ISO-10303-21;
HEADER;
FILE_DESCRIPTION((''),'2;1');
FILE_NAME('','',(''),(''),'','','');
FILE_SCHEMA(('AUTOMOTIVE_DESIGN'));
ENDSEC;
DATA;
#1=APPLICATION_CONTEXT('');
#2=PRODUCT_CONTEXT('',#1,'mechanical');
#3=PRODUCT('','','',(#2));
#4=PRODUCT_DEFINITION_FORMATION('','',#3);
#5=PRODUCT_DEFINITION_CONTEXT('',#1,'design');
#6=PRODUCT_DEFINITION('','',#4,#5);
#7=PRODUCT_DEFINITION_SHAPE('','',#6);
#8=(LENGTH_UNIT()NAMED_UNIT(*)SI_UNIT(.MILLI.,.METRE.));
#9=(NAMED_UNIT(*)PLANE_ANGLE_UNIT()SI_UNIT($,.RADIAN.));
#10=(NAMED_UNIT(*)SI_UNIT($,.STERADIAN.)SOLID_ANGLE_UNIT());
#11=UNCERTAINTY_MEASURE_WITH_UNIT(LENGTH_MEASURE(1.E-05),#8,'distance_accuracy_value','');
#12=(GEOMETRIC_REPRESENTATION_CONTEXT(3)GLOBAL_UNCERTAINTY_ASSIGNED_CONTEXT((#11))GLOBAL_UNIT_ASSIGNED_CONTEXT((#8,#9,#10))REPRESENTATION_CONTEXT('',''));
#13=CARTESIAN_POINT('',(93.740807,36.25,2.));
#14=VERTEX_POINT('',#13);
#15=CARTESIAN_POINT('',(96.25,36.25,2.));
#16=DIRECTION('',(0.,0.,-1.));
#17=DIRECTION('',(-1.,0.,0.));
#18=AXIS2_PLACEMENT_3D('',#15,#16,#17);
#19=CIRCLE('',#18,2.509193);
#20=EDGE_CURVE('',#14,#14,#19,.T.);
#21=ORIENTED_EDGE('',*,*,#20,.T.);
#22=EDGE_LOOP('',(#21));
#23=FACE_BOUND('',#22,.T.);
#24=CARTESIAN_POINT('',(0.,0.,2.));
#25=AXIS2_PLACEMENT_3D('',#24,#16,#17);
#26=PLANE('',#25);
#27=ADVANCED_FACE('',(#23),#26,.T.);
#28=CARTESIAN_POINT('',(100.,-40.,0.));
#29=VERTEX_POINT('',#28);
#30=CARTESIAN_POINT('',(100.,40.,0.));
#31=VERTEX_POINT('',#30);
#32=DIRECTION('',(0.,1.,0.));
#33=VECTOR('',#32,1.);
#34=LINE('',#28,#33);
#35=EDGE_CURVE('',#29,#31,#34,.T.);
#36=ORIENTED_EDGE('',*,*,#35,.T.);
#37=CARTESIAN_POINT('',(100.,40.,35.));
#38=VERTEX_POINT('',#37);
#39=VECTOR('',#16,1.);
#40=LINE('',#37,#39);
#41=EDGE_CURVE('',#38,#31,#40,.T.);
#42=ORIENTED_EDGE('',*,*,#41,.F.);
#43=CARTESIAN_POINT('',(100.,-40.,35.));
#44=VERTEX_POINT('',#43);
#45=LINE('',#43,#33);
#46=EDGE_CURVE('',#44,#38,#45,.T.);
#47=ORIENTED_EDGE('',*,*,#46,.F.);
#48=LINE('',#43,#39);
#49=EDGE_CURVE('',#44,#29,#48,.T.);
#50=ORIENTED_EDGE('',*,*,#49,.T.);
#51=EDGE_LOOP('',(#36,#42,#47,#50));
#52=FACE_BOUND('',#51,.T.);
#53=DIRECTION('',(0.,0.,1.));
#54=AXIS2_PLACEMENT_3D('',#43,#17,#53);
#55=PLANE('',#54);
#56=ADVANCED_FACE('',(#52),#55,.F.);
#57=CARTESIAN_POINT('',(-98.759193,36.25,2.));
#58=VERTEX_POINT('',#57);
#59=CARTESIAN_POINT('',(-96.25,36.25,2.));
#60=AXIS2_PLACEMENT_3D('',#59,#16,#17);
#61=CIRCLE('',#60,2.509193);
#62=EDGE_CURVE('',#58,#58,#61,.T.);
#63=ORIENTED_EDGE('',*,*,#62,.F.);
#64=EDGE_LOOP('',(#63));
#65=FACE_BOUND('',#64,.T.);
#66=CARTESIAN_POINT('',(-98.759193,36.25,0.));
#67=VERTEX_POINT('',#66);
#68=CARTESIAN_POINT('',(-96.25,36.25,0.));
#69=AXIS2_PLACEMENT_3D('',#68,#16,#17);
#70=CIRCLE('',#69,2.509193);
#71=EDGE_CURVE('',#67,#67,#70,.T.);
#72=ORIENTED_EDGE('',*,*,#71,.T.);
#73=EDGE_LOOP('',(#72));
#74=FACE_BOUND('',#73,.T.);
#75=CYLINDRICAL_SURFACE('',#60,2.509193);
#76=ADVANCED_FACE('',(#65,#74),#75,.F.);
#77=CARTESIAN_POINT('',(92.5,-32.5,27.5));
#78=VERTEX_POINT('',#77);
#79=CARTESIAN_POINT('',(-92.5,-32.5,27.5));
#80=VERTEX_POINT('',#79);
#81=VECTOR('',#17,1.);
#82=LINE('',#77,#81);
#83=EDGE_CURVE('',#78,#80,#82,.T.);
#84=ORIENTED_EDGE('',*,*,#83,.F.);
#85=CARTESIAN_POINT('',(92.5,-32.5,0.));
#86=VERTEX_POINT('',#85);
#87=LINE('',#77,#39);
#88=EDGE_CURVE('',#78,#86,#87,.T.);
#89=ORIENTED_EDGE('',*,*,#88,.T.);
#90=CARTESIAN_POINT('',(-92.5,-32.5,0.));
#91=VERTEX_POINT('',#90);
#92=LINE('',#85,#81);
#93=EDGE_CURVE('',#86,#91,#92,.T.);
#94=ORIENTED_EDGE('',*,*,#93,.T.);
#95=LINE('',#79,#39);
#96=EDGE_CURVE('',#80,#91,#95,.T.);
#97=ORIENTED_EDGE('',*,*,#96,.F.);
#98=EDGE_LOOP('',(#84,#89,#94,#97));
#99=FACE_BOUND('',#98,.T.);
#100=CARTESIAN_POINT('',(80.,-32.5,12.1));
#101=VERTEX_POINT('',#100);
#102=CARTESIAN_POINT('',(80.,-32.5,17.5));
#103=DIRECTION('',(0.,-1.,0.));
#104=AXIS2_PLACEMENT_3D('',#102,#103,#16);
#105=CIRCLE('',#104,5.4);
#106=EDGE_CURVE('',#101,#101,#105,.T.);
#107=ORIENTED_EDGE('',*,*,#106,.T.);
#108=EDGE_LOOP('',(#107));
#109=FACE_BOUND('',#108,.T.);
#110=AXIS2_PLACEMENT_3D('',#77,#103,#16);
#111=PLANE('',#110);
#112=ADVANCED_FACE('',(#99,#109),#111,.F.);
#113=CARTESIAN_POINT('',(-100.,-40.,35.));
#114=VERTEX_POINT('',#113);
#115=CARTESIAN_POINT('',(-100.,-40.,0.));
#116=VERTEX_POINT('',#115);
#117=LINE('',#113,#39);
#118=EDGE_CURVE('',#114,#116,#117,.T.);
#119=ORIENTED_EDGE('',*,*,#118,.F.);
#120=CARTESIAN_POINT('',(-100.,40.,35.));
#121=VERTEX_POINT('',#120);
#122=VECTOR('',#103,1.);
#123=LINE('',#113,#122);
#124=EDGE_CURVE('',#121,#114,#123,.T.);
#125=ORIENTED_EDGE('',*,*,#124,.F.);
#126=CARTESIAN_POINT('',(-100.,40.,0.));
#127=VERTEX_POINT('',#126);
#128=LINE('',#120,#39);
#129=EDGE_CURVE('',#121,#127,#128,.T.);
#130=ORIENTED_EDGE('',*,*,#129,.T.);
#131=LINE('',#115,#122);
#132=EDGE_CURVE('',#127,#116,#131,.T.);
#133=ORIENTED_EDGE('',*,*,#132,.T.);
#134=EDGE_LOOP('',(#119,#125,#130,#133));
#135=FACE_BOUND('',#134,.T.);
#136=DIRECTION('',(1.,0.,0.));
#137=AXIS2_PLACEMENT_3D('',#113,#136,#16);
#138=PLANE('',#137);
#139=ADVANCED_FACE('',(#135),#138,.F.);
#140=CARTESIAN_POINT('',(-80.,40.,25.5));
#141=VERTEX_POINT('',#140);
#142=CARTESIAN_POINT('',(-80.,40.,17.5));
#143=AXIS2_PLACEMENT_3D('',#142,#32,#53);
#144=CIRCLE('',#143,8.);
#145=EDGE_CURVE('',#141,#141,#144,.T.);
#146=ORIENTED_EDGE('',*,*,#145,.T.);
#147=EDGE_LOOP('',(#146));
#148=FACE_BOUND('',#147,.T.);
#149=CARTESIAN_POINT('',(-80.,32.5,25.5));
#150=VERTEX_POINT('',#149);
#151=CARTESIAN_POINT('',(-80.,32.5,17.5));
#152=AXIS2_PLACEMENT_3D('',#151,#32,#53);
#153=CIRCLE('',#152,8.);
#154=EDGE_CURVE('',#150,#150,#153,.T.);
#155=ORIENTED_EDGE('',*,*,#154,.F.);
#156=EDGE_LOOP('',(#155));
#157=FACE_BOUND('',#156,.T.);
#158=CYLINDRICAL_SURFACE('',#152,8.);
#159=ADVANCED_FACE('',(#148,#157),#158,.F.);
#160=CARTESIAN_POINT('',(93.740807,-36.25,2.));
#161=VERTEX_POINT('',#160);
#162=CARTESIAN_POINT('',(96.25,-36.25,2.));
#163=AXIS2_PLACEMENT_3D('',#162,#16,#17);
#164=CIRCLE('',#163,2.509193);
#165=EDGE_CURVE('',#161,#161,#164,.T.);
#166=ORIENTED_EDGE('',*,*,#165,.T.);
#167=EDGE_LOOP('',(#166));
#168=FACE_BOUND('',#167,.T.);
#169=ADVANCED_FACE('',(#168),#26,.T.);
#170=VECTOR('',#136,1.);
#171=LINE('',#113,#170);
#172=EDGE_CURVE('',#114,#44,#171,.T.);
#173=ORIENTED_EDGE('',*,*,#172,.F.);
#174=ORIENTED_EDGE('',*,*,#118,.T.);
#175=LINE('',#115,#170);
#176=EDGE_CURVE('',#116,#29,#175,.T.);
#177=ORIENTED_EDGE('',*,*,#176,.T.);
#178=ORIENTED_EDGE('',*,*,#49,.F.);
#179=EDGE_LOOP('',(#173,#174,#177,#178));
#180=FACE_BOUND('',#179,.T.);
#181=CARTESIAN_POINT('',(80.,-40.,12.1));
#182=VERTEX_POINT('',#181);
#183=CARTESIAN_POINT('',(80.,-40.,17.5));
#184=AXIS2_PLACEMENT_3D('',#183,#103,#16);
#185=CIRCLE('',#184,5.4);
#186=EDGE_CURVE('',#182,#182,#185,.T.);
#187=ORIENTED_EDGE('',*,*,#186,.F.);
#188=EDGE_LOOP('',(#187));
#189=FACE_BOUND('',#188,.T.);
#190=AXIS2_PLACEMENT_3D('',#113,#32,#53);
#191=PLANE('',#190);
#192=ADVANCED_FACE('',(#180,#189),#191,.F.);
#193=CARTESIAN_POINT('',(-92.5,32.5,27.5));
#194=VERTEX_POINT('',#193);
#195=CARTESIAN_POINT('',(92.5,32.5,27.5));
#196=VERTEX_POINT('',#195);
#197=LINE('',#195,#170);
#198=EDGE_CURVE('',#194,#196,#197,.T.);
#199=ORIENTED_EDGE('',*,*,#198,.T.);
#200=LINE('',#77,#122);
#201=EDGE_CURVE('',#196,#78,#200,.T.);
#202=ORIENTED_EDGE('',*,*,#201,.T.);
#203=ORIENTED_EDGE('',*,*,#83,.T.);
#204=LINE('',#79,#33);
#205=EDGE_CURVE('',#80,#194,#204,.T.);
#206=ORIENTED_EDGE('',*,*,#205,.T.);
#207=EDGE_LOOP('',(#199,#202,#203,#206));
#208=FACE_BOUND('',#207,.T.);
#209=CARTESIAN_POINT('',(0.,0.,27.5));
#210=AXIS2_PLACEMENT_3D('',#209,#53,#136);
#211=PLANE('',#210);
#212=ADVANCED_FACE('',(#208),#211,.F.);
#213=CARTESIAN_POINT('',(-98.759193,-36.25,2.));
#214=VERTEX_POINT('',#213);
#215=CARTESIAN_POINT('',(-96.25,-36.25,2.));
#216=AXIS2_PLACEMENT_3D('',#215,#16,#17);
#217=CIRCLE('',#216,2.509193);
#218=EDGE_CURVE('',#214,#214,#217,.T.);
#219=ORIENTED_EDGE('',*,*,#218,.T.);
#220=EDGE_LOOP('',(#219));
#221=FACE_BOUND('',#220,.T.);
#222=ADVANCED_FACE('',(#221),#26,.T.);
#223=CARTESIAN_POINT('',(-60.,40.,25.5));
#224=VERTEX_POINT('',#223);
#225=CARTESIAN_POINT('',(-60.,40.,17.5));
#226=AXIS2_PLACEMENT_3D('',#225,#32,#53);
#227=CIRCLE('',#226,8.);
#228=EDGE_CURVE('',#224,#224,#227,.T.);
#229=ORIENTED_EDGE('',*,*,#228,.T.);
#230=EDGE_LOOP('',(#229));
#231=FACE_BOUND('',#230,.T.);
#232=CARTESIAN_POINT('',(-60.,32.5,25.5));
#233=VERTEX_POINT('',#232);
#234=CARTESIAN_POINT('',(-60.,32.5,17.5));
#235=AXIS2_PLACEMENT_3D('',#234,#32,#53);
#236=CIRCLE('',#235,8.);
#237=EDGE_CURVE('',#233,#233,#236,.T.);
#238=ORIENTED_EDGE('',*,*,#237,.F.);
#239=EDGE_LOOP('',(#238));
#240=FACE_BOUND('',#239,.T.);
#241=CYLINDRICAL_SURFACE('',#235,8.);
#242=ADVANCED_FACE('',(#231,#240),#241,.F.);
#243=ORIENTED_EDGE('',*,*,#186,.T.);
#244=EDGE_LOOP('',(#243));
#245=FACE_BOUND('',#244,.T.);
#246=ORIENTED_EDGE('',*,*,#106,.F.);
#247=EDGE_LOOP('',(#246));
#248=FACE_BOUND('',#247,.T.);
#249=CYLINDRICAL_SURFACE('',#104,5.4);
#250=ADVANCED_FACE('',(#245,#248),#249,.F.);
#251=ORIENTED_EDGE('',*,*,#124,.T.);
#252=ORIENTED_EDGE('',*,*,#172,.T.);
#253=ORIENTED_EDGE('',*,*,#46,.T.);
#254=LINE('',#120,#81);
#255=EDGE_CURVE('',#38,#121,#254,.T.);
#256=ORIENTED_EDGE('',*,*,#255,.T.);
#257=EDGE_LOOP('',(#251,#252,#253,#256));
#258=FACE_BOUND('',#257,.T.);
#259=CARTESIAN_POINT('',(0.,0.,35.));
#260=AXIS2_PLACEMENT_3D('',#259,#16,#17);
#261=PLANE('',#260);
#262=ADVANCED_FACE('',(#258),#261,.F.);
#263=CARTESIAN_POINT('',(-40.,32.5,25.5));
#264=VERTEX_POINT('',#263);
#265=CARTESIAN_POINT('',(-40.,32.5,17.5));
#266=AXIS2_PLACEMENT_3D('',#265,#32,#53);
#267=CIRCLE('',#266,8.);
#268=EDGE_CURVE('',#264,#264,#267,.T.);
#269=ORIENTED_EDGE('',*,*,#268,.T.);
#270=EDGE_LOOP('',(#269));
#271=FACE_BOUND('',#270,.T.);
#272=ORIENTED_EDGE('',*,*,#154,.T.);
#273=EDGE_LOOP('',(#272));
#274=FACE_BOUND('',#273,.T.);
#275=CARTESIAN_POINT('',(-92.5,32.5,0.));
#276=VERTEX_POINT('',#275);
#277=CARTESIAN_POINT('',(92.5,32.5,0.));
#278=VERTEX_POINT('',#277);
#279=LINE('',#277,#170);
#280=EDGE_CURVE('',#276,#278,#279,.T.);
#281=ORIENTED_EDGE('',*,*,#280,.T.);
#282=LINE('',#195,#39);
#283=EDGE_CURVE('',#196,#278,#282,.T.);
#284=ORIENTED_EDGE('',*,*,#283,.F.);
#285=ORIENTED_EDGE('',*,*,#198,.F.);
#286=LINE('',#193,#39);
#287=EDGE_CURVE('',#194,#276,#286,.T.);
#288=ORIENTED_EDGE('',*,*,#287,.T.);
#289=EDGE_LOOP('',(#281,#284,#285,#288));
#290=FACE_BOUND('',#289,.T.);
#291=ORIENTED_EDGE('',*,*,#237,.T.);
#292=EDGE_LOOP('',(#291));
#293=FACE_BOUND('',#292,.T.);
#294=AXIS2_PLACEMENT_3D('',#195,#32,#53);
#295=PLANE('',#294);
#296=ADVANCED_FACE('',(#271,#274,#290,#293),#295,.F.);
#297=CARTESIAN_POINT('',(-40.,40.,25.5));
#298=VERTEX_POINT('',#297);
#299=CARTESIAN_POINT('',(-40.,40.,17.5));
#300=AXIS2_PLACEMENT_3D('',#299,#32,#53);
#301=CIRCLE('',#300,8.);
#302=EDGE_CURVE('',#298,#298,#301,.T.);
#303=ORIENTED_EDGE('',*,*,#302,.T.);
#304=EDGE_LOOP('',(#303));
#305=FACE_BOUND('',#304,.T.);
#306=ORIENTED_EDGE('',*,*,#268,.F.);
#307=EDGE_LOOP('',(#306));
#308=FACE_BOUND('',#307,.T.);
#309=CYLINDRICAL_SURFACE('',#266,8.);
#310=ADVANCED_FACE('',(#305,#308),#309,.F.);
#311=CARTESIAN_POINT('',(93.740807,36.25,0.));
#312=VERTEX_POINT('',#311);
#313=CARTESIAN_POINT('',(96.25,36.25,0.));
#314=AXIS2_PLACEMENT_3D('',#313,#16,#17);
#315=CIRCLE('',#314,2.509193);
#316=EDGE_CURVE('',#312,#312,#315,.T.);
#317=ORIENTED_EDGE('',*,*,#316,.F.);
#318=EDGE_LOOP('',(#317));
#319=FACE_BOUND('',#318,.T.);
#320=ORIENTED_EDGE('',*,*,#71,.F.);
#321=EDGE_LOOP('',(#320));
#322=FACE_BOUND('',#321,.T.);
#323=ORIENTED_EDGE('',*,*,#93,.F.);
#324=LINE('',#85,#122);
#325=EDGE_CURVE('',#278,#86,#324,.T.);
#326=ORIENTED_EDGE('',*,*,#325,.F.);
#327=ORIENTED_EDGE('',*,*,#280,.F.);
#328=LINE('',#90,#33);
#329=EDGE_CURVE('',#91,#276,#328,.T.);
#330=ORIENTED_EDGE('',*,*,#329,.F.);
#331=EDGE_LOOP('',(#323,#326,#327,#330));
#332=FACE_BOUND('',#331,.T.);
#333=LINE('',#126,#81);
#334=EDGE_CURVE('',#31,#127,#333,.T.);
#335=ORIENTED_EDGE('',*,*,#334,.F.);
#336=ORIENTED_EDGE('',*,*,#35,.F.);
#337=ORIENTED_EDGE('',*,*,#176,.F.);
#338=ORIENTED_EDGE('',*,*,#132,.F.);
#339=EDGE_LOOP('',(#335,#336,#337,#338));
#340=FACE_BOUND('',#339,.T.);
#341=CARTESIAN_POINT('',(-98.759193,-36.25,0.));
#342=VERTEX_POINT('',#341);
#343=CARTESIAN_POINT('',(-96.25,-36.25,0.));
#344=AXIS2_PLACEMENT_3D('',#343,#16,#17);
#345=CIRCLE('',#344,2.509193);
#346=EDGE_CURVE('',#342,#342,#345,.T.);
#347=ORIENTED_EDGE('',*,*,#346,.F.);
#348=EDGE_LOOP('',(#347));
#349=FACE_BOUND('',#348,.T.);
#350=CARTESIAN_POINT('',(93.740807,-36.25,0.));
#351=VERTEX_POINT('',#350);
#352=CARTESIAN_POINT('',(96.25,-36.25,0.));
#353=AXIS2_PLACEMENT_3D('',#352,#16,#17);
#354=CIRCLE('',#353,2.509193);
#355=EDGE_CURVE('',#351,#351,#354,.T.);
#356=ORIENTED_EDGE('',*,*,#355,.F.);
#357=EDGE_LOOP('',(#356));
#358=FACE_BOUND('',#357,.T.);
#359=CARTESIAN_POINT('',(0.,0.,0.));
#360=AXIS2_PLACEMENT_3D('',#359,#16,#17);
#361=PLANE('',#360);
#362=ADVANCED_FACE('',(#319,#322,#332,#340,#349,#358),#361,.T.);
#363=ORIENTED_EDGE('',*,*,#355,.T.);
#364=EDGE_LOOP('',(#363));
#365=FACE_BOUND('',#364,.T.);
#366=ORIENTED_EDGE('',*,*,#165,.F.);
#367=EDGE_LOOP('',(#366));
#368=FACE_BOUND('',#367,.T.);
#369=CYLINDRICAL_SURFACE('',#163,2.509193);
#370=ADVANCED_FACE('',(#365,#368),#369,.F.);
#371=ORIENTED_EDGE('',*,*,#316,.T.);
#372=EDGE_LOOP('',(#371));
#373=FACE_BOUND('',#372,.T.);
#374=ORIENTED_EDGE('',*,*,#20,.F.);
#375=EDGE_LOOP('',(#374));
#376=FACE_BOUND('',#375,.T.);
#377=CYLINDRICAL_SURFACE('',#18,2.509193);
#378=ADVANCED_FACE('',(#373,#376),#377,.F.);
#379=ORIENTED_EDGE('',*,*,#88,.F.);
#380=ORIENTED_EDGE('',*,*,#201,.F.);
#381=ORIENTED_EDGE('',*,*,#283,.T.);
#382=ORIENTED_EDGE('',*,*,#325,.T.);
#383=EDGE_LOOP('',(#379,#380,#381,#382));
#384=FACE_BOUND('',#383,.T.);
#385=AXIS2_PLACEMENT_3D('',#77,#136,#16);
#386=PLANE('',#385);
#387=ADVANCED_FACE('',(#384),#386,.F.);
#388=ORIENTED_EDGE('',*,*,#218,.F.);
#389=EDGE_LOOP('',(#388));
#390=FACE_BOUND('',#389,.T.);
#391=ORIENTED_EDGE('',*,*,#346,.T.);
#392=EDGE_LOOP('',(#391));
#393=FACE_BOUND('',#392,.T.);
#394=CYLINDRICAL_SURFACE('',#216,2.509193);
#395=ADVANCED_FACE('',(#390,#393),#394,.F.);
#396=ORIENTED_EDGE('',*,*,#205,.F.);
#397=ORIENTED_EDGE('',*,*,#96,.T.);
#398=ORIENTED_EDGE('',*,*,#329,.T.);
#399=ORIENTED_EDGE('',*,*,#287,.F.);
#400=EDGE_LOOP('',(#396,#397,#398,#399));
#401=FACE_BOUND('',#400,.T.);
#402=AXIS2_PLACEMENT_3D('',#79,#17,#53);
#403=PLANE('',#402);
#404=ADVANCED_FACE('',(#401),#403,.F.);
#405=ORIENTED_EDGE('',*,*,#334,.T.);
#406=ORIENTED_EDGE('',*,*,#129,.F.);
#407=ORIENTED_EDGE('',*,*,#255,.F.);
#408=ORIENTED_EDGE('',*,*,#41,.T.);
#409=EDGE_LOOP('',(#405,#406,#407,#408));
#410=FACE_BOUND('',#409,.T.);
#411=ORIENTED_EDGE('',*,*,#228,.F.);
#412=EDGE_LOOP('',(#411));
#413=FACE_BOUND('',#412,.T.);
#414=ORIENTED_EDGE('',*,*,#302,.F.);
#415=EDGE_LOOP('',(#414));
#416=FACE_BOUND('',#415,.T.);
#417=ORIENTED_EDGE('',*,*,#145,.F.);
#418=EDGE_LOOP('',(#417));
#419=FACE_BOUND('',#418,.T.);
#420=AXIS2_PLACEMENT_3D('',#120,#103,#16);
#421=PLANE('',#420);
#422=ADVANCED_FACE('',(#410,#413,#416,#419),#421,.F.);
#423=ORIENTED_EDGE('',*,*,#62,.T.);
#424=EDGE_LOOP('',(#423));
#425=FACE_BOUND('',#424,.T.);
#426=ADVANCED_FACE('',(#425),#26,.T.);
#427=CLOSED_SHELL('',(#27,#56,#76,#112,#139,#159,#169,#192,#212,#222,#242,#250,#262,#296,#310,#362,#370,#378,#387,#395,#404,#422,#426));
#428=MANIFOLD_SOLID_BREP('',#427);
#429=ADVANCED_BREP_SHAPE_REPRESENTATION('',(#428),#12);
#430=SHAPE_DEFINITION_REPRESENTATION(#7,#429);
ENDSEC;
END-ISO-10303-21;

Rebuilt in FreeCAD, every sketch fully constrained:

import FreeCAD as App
import Part
import Sketcher
from FreeCAD import Vector


def add_polygon(sketch, points):
    """Adds a closed chain of lines whose ends are joined by coincident constraints."""
    first, n = sketch.GeometryCount, len(points)
    for a, b in zip(points, points[1:] + points[:1]):
        sketch.addGeometry(Part.LineSegment(App.Vector(*a, 0), App.Vector(*b, 0)), False)
    for i in range(n):
        sketch.addConstraint(Sketcher.Constraint("Coincident", first + i, 2, first + (i + 1) % n, 1))

doc = App.newDocument("Part")
params = doc.addObject("Spreadsheet::Sheet", "Params")
for row, (alias, value) in enumerate([
    ("sketch1_width", "200 mm"),
    ("sketch1_height", "80 mm"),
    ("pad1_length", "35 mm"),
    ("sketch2_width", "185 mm"),
    ("sketch2_height", "65 mm"),
    ("pocket1_length", "27.5 mm"),
    ("sketch3_diameter", "16 mm"),
    ("pocket2_length", "7.5 mm"),
    ("sketch4_diameter", "10.8 mm"),
    ("pocket3_length", "7.5 mm"),
    ("pocket4_length", "2 mm"),
], start=1):
    params.set(f"A{row}", alias)
    params.set(f"B{row}", "=" + value)
    params.setAlias(f"B{row}", alias)

body = doc.addObject("PartDesign::Body", "Body")

# Sketch on XY plane
sketch1 = body.newObject("Sketcher::SketchObject", "Sketch")
sketch1.AttachmentSupport = (doc.getObject("XY_Plane"), [""])
sketch1.MapMode = "FlatFace"
add_polygon(sketch1, [(-100, 40), (-100, -40), (100, -40), (100, 40)])  # lines 0-3
sketch1.addConstraint(Sketcher.Constraint("Vertical", 0))
sketch1.addConstraint(Sketcher.Constraint("Horizontal", 1))
sketch1.addConstraint(Sketcher.Constraint("Vertical", 2))
sketch1.addConstraint(Sketcher.Constraint("Horizontal", 3))
sketch1.addConstraint(Sketcher.Constraint("Symmetric", 0, 2, 2, 2, -1, 1))
sketch1.addConstraint(Sketcher.Constraint("DistanceX", 1, 1, 1, 2, 200.0))
sketch1.addConstraint(Sketcher.Constraint("DistanceY", 0, 2, 0, 1, 80.0))
sketch1.setExpression("Constraints[9]", "Params.sketch1_width")
sketch1.setExpression("Constraints[10]", "Params.sketch1_height")
pad1 = body.newObject("PartDesign::Pad", "Pad")
pad1.Profile = sketch1
pad1.setExpression("Length", "Params.pad1_length")

# Sketch on XY plane
sketch2 = body.newObject("Sketcher::SketchObject", "Sketch001")
sketch2.AttachmentSupport = (doc.getObject("XY_Plane"), [""])
sketch2.MapMode = "FlatFace"
add_polygon(sketch2, [(92, 32), (92, -32), (-92, -32), (-92, 32)])  # lines 0-3
sketch2.addConstraint(Sketcher.Constraint("Vertical", 0))
sketch2.addConstraint(Sketcher.Constraint("Horizontal", 1))
sketch2.addConstraint(Sketcher.Constraint("Vertical", 2))
sketch2.addConstraint(Sketcher.Constraint("Horizontal", 3))
sketch2.addConstraint(Sketcher.Constraint("Symmetric", 0, 2, 2, 2, -1, 1))
sketch2.addConstraint(Sketcher.Constraint("DistanceX", 1, 2, 1, 1, 185.0))
sketch2.addConstraint(Sketcher.Constraint("DistanceY", 0, 2, 0, 1, 65.0))
sketch2.setExpression("Constraints[9]", "Params.sketch2_width")
sketch2.setExpression("Constraints[10]", "Params.sketch2_height")
pocket1 = body.newObject("PartDesign::Pocket", "Pocket")
pocket1.Profile = sketch2
pocket1.setExpression("Length", "Params.pocket1_length")
pocket1.Reversed = True

# Sketch on XZ plane
sketch3 = body.newObject("Sketcher::SketchObject", "Sketch002")
sketch3.AttachmentSupport = (doc.getObject("XZ_Plane"), [""])
sketch3.MapMode = "FlatFace"
sketch3.AttachmentOffset = App.Placement(Vector(0, 0, -40), App.Rotation())
sketch3.addGeometry(Part.Circle(Vector(-80, 18, 0), Vector(0, 0, 1), 8), False)
sketch3.addGeometry(Part.Circle(Vector(-60, 18, 0), Vector(0, 0, 1), 8), False)
sketch3.addGeometry(Part.Circle(Vector(-40, 18, 0), Vector(0, 0, 1), 8), False)
sketch3.addConstraint(Sketcher.Constraint("Equal", 0, 1))
sketch3.addConstraint(Sketcher.Constraint("Equal", 1, 2))
sketch3.addConstraint(Sketcher.Constraint("Horizontal", 0, 3, 1, 3))
sketch3.addConstraint(Sketcher.Constraint("Horizontal", 1, 3, 2, 3))
sketch3.addConstraint(Sketcher.Constraint("Diameter", 0, 16.0))
sketch3.addConstraint(Sketcher.Constraint("DistanceX", 0, 3, -1, 1, 80.0))
sketch3.addConstraint(Sketcher.Constraint("DistanceX", 1, 3, -1, 1, 60.0))
sketch3.addConstraint(Sketcher.Constraint("DistanceX", 2, 3, -1, 1, 40.0))
sketch3.addConstraint(Sketcher.Constraint("DistanceY", -1, 1, 0, 3, 17.5))
sketch3.setExpression("Constraints[4]", "Params.sketch3_diameter")
pocket2 = body.newObject("PartDesign::Pocket", "Pocket001")
pocket2.Profile = sketch3
pocket2.setExpression("Length", "Params.pocket2_length")
pocket2.Reversed = True

# Sketch on XZ plane
sketch4 = body.newObject("Sketcher::SketchObject", "Sketch003")
sketch4.AttachmentSupport = (doc.getObject("XZ_Plane"), [""])
sketch4.MapMode = "FlatFace"
sketch4.AttachmentOffset = App.Placement(Vector(0, 0, 40), App.Rotation())
sketch4.addGeometry(Part.Circle(Vector(80, 18, 0), Vector(0, 0, 1), 5), False)
sketch4.addConstraint(Sketcher.Constraint("Diameter", 0, 10.8))
sketch4.addConstraint(Sketcher.Constraint("DistanceX", -1, 1, 0, 3, 80.0))
sketch4.addConstraint(Sketcher.Constraint("DistanceY", -1, 1, 0, 3, 17.5))
sketch4.setExpression("Constraints[0]", "Params.sketch4_diameter")
pocket3 = body.newObject("PartDesign::Pocket", "Pocket002")
pocket3.Profile = sketch4
pocket3.setExpression("Length", "Params.pocket3_length")

# Sketch on XY plane
sketch5 = body.newObject("Sketcher::SketchObject", "Sketch004")
sketch5.AttachmentSupport = (doc.getObject("XY_Plane"), [""])
sketch5.MapMode = "FlatFace"
sketch5.addGeometry(Part.Circle(Vector(-96.2, -36.2, 0), Vector(0, 0, 1), 2.5), False)
sketch5.addGeometry(Part.Circle(Vector(-96.2, 36.2, 0), Vector(0, 0, 1), 2.5), False)
sketch5.addGeometry(Part.Circle(Vector(96.2, 36.2, 0), Vector(0, 0, 1), 2.5), False)
sketch5.addGeometry(Part.Circle(Vector(96.2, -36.2, 0), Vector(0, 0, 1), 2.5), False)
sketch5.addConstraint(Sketcher.Constraint("Equal", 0, 1))
sketch5.addConstraint(Sketcher.Constraint("Equal", 1, 2))
sketch5.addConstraint(Sketcher.Constraint("Equal", 2, 3))
sketch5.addConstraint(Sketcher.Constraint("Symmetric", 0, 3, 2, 3, -1, 1))
sketch5.addConstraint(Sketcher.Constraint("Symmetric", 1, 3, 3, 3, -1, 1))
sketch5.addConstraint(Sketcher.Constraint("Symmetric", 1, 3, 2, 3, -2))
sketch5.addConstraint(Sketcher.Constraint("DistanceY", 0, 3, 1, 3, 72.5))
sketch5.addConstraint(Sketcher.Constraint("DistanceX", 1, 3, 2, 3, 192.5))
sketch5.addConstraint(Sketcher.Constraint("Diameter", 0, 5.018386))
pocket4 = body.newObject("PartDesign::Pocket", "Pocket003")
pocket4.Profile = sketch5
pocket4.setExpression("Length", "Params.pocket4_length")
pocket4.Reversed = True

doc.recompute()
